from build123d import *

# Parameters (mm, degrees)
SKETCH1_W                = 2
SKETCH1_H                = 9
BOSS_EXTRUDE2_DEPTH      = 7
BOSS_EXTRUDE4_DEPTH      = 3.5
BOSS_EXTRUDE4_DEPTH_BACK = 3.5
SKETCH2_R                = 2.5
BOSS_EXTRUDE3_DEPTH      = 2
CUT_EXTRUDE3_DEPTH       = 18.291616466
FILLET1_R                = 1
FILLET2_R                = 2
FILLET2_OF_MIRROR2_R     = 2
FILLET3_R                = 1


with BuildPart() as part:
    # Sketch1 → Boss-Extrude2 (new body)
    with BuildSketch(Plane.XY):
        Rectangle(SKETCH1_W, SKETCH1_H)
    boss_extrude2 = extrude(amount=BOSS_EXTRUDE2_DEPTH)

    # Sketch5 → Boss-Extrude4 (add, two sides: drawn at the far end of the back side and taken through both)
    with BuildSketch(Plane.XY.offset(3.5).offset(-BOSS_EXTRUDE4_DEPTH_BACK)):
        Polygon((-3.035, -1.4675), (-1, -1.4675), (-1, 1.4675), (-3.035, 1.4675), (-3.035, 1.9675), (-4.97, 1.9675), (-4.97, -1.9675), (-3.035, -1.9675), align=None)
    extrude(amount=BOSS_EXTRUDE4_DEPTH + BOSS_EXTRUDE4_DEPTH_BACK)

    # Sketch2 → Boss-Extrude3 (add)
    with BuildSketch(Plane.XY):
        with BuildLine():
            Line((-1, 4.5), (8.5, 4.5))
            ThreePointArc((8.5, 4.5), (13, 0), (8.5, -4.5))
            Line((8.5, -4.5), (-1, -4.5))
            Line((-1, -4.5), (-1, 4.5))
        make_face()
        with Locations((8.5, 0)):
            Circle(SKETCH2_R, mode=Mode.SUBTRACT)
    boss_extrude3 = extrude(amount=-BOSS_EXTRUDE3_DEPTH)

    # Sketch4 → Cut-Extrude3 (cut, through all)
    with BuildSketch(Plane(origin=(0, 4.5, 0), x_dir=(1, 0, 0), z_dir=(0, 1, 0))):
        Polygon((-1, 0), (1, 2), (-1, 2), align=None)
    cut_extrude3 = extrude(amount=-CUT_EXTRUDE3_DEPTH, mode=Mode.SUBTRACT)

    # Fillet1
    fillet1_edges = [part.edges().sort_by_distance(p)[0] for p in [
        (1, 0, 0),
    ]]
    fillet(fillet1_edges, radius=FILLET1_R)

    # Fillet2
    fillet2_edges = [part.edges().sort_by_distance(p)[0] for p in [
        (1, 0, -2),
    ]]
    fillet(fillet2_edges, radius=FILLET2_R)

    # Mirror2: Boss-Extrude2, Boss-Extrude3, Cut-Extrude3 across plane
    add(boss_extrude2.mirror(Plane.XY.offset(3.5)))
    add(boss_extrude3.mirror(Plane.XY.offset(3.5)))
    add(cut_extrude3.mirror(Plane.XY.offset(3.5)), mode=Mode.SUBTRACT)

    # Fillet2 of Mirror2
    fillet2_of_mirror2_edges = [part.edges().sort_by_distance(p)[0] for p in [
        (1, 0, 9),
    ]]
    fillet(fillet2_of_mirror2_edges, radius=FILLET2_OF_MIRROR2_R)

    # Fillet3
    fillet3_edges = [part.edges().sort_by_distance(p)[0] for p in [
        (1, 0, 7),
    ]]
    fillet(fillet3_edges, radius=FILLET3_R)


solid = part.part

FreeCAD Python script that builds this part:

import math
import FreeCAD as App
import Part
import Sketcher
Q = App.Units.Quantity


def edges_at(feature, points):
    """Names of the edges that pass closest to the given points."""
    edges = feature.Shape.Edges
    near = lambda p: min(range(len(edges)), key=lambda i: edges[i].distToShape(Part.Vertex(*p))[0])
    return sorted({f"Edge{near(p) + 1}" for p in points})


def add_polygon(sketch, points):
    """Adds a closed chain of lines whose ends are joined by coincident constraints."""
    first, n = sketch.GeometryCount, len(points)
    for a, b in zip(points, points[1:] + points[:1]):
        sketch.addGeometry(Part.LineSegment(App.Vector(*a, 0), App.Vector(*b, 0)), False)
    for i in range(n):
        sketch.addConstraint(Sketcher.Constraint("Coincident", first + i, 2, first + (i + 1) % n, 1))

doc = App.newDocument("Part")
params = doc.addObject("Spreadsheet::Sheet", "Params")
for row, (alias, value) in enumerate([
    ("sketch1_width", "2 mm"),
    ("sketch1_height", "9 mm"),
    ("pad1_length", "7 mm"),
    ("sketch2_height", "0.5 mm"),
    ("pad2_length", "3.5 mm"),
    ("pad2_length2", "3.5 mm"),
    ("sketch3_diameter", "5 mm"),
    ("sketch3_radius", "4.5 mm"),
    ("sketch3_width", "9.5 mm"),
    ("pad3_length", "2 mm"),
    ("sketch4_width", "2 mm"),
    ("fillet_radius", "1 mm"),
    ("fillet2_radius", "2 mm"),
    ("fillet3_radius", "2 mm"),
    ("fillet4_radius", "1 mm"),
], start=1):
    params.set(f"A{row}", alias)
    params.set(f"B{row}", "=" + value)
    params.setAlias(f"B{row}", alias)

body = doc.addObject("PartDesign::Body", "Body")

# Sketch on XY plane
sketch1 = doc.addObject("Sketcher::SketchObject", "Sketch")
body.addObject(sketch1)
sketch1.AttachmentSupport = (doc.XY_Plane, [""])
sketch1.MapMode = "FlatFace"
add_polygon(sketch1, [(-1, 4.5), (-1, -4.5), (1, -4.5), (1, 4.5)])  # lines 0-3
sketch1.addConstraint([
    Sketcher.Constraint("Vertical", 0),
    Sketcher.Constraint("Horizontal", 1),
    Sketcher.Constraint("Vertical", 2),
    Sketcher.Constraint("Horizontal", 3),
    Sketcher.Constraint("Symmetric", 0, 2, 2, 2, -1, 1),
    Sketcher.Constraint("DistanceX", 1, 1, 1, 2, Q("2 mm")),
    Sketcher.Constraint("DistanceY", 0, 2, 0, 1, Q("9 mm")),
])
sketch1.setExpression("Constraints[9]", "Params.sketch1_width")
sketch1.setExpression("Constraints[10]", "Params.sketch1_height")
pad1 = doc.addObject("PartDesign::Pad", "Pad")
body.addObject(pad1)
pad1.Profile = sketch1
pad1.setExpression("Length", "Params.pad1_length")

# Sketch on XY plane
sketch2 = doc.addObject("Sketcher::SketchObject", "Sketch001")
body.addObject(sketch2)
sketch2.AttachmentSupport = (doc.XY_Plane, [""])
sketch2.MapMode = "FlatFace"
sketch2.AttachmentOffset = App.Placement(App.Vector(0, 0, 3.5), App.Rotation())
add_polygon(sketch2, [(-3, -1.5), (-1, -1.5), (-1, 1.5), (-3, 1.5), (-3, 2), (-5, 2), (-5, -2), (-3, -2)])  # lines 0-7
sketch2.addConstraint([
    Sketcher.Constraint("Horizontal", 0),
    Sketcher.Constraint("Vertical", 1),
    Sketcher.Constraint("Horizontal", 2),
    Sketcher.Constraint("Vertical", 3),
    Sketcher.Constraint("Horizontal", 4),
    Sketcher.Constraint("Vertical", 5),
    Sketcher.Constraint("Horizontal", 6),
    Sketcher.Constraint("Vertical", 7),
    Sketcher.Constraint("Symmetric", 3, 2, 6, 2, -1),
    Sketcher.Constraint("Equal", 3, 7),
    Sketcher.Constraint("DistanceY", 3, 1, 3, 2, Q("0.5 mm")),
    Sketcher.Constraint("DistanceX", 0, 2, -1, 1, Q("1 mm")),
    Sketcher.Constraint("DistanceX", 0, 1, 0, 2, Q("2.035 mm")),
    Sketcher.Constraint("DistanceX", 4, 2, 4, 1, Q("1.935 mm")),
    Sketcher.Constraint("DistanceY", 1, 1, 1, 2, Q("2.935 mm")),
])
sketch2.setExpression("Constraints[18]", "Params.sketch2_height")
pad2 = doc.addObject("PartDesign::Pad", "Pad001")
body.addObject(pad2)
pad2.Profile = sketch2
pad2.Type = "TwoLengths"
pad2.setExpression("Length", "Params.pad2_length")
pad2.setExpression("Length2", "Params.pad2_length2")

# Sketch on XY plane
sketch3 = doc.addObject("Sketcher::SketchObject", "Sketch002")
body.addObject(sketch3)
sketch3.AttachmentSupport = (doc.XY_Plane, [""])
sketch3.MapMode = "FlatFace"
sketch3.addGeometry([
    Part.LineSegment(App.Vector(8.5, 4.5, 0), App.Vector(-1, 4.5, 0)),  # 0
    Part.LineSegment(App.Vector(-1, 4.5, 0), App.Vector(-1, -4.5, 0)),  # 1
    Part.LineSegment(App.Vector(-1, -4.5, 0), App.Vector(8.5, -4.5, 0)),  # 2
    Part.ArcOfCircle(Part.Circle(App.Vector(8.5, 0, 0), App.Vector(0, 0, 1), 4.5), math.radians(-90), math.radians(90)),  # 3
    Part.Circle(App.Vector(8.5, 0, 0), App.Vector(0, 0, 1), 2.5),  # 4
], False)
sketch3.addConstraint([
    Sketcher.Constraint("Coincident", 0, 2, 1, 1),
    Sketcher.Constraint("Coincident", 1, 2, 2, 1),
    Sketcher.Constraint("Tangent", 2, 2, 3, 1),
    Sketcher.Constraint("Tangent", 3, 2, 0, 1),
    Sketcher.Constraint("Horizontal", 0),
    Sketcher.Constraint("Vertical", 1),
    Sketcher.Constraint("Horizontal", 2),
    Sketcher.Constraint("Coincident", 4, 3, 3, 3),
    Sketcher.Constraint("PointOnObject", 3, 3, -1),
    Sketcher.Constraint("Diameter", 4, Q("5 mm")),
    Sketcher.Constraint("Radius", 3, Q("4.5 mm")),
    Sketcher.Constraint("DistanceX", 0, 2, 0, 1, Q("9.5 mm")),
    Sketcher.Constraint("DistanceX", 0, 2, -1, 1, Q("1 mm")),
])
sketch3.setExpression("Constraints[9]", "Params.sketch3_diameter")
sketch3.setExpression("Constraints[10]", "Params.sketch3_radius")
sketch3.setExpression("Constraints[11]", "Params.sketch3_width")
pad3 = doc.addObject("PartDesign::Pad", "Pad002")
body.addObject(pad3)
pad3.Profile = sketch3
pad3.setExpression("Length", "Params.pad3_length")
pad3.Reversed = True

# Sketch on XZ plane
sketch4 = doc.addObject("Sketcher::SketchObject", "Sketch003")
body.addObject(sketch4)
sketch4.AttachmentSupport = (doc.XZ_Plane, [""])
sketch4.MapMode = "FlatFace"
sketch4.AttachmentOffset = App.Placement(App.Vector(0, 0, -4.5), App.Rotation())
add_polygon(sketch4, [(-1, 0), (1, -2), (-1, -2)])  # lines 0-2
sketch4.addConstraint([
    Sketcher.Constraint("Horizontal", 1),
    Sketcher.Constraint("Vertical", 2),
    Sketcher.Constraint("PointOnObject", 2, 2, -1),
    Sketcher.Constraint("Equal", 1, 2),
    Sketcher.Constraint("DistanceX", 1, 2, 1, 1, Q("2 mm")),
    Sketcher.Constraint("DistanceX", -1, 1, 0, 2, Q("1 mm")),
])
sketch4.setExpression("Constraints[7]", "Params.sketch4_width")
pocket1 = doc.addObject("PartDesign::Pocket", "Pocket")
body.addObject(pocket1)
pocket1.Profile = sketch4
pocket1.Type = "ThroughAll"
pocket1.Reversed = True
doc.recompute()

fillet = doc.addObject("PartDesign::Fillet", "Fillet")
body.addObject(fillet)
fillet.Base = (pocket1, edges_at(pocket1, [(1, 0, 0)]))
fillet.setExpression("Radius", "Params.fillet_radius")
doc.recompute()

fillet2 = doc.addObject("PartDesign::Fillet", "Fillet001")
body.addObject(fillet2)
fillet2.Base = (fillet, edges_at(fillet, [(1, 0, -2)]))
fillet2.setExpression("Radius", "Params.fillet2_radius")
doc.recompute()

datumplane = doc.addObject("PartDesign::Plane", "DatumPlane")
body.addObject(datumplane)
datumplane.AttachmentSupport = (doc.XY_Plane, [""])
datumplane.MapMode = "FlatFace"
datumplane.AttachmentOffset = App.Placement(App.Vector(0, 0, 3.5), App.Rotation())
mirrored = doc.addObject("PartDesign::Mirrored", "Mirrored")
body.addObject(mirrored)
mirrored.Originals = [pad1, pad3, pocket1]
mirrored.MirrorPlane = (datumplane, [""])
body.Tip = mirrored
doc.recompute()

fillet3 = doc.addObject("PartDesign::Fillet", "Fillet002")
body.addObject(fillet3)
fillet3.Base = (mirrored, edges_at(mirrored, [(1, 0, 9)]))
fillet3.setExpression("Radius", "Params.fillet3_radius")
doc.recompute()

fillet4 = doc.addObject("PartDesign::Fillet", "Fillet003")
body.addObject(fillet4)
fillet4.Base = (fillet3, edges_at(fillet3, [(1, 0, 7)]))
fillet4.setExpression("Radius", "Params.fillet4_radius")

doc.recompute()
